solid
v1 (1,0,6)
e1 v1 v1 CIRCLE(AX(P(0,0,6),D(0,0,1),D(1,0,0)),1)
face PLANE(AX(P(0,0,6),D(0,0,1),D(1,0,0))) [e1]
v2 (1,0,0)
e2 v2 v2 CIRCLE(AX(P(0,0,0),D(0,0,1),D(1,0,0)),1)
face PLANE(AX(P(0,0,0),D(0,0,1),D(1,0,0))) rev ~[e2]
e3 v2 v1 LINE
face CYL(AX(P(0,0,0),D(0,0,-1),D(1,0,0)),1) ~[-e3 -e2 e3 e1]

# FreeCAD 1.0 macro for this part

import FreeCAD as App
import Part
import Sketcher
Q = App.Units.Quantity

doc = App.newDocument("Part")
body = doc.addObject("PartDesign::Body", "Body")

sketch1 = doc.addObject("Sketcher::SketchObject", "Sketch")
body.addObject(sketch1)
sketch1.AttachmentSupport = (doc.XY_Plane, [""])
sketch1.MapMode = "FlatFace"
sketch1.addGeometry(Part.Circle(App.Vector(0, 0, 0), App.Vector(0, 0, 1), 1), False)
sketch1.addConstraint([
    Sketcher.Constraint("Coincident", 0, 3, -1, 1),
    Sketcher.Constraint("Diameter", 0, Q("2 mm")),
])
pad1 = doc.addObject("PartDesign::Pad", "Pad")
body.addObject(pad1)
pad1.Profile = sketch1
pad1.Length = 6

doc.recompute()
